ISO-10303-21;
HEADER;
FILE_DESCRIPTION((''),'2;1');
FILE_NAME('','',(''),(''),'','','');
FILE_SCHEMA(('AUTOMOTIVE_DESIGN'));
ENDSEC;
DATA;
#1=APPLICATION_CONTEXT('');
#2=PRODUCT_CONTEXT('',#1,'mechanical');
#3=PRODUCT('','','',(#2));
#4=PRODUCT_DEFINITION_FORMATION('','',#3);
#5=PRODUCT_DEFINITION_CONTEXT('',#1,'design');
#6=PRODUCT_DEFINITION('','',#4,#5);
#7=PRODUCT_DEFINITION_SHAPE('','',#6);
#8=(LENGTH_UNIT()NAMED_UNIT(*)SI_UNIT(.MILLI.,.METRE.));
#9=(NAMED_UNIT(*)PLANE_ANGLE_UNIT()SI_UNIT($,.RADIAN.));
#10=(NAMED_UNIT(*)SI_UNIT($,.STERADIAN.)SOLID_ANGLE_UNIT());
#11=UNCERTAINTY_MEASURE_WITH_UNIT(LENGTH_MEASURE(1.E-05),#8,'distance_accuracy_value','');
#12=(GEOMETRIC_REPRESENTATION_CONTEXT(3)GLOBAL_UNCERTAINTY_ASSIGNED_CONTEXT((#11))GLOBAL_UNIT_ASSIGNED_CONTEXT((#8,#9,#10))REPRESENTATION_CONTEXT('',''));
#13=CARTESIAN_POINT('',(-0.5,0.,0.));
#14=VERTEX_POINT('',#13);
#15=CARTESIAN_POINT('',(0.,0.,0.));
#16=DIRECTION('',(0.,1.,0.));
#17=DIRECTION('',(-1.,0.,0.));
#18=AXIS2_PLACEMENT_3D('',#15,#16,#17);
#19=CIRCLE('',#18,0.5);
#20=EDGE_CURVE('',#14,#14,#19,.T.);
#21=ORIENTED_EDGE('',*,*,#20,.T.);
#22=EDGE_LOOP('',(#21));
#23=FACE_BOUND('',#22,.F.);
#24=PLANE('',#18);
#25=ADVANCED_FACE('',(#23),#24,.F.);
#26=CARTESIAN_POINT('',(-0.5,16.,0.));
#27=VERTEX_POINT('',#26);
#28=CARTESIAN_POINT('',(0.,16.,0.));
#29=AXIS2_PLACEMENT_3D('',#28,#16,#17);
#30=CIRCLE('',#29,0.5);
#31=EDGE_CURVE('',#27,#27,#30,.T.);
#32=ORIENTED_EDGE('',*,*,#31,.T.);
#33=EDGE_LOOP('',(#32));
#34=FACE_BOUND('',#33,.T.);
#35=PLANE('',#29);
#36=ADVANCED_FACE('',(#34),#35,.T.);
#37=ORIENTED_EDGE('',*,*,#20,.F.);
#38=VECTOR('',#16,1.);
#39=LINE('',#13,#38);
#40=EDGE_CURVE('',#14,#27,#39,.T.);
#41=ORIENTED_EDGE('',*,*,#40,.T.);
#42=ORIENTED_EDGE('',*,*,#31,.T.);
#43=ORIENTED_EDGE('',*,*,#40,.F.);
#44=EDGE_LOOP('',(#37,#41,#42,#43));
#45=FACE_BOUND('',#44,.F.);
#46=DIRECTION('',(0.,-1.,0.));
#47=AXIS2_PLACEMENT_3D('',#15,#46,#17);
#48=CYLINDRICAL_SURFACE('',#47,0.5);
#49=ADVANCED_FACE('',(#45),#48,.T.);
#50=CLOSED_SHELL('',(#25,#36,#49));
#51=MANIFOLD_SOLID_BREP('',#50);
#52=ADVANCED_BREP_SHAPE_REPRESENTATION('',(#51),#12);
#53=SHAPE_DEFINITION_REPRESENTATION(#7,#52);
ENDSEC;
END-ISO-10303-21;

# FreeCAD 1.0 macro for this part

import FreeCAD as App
import Part
import Sketcher
from FreeCAD import Vector
Q = App.Units.Quantity

doc = App.newDocument("Part")
body = doc.addObject("PartDesign::Body", "Body")

# Sketch on XZ plane
sketch1 = body.newObject("Sketcher::SketchObject", "Sketch")
sketch1.AttachmentSupport = (doc.getObject("XZ_Plane"), [""])
sketch1.MapMode = "FlatFace"
sketch1.addGeometry(Part.Circle(Vector(0, 0, 0), Vector(0, 0, 1), 0.5), False)
sketch1.addConstraint(Sketcher.Constraint("Coincident", 0, 3, -1, 1))
sketch1.addConstraint(Sketcher.Constraint("Diameter", 0, Q("1 mm")))
pad1 = body.newObject("PartDesign::Pad", "Pad")
pad1.Profile = sketch1
pad1.Length = 16
pad1.Reversed = True

doc.recompute()
